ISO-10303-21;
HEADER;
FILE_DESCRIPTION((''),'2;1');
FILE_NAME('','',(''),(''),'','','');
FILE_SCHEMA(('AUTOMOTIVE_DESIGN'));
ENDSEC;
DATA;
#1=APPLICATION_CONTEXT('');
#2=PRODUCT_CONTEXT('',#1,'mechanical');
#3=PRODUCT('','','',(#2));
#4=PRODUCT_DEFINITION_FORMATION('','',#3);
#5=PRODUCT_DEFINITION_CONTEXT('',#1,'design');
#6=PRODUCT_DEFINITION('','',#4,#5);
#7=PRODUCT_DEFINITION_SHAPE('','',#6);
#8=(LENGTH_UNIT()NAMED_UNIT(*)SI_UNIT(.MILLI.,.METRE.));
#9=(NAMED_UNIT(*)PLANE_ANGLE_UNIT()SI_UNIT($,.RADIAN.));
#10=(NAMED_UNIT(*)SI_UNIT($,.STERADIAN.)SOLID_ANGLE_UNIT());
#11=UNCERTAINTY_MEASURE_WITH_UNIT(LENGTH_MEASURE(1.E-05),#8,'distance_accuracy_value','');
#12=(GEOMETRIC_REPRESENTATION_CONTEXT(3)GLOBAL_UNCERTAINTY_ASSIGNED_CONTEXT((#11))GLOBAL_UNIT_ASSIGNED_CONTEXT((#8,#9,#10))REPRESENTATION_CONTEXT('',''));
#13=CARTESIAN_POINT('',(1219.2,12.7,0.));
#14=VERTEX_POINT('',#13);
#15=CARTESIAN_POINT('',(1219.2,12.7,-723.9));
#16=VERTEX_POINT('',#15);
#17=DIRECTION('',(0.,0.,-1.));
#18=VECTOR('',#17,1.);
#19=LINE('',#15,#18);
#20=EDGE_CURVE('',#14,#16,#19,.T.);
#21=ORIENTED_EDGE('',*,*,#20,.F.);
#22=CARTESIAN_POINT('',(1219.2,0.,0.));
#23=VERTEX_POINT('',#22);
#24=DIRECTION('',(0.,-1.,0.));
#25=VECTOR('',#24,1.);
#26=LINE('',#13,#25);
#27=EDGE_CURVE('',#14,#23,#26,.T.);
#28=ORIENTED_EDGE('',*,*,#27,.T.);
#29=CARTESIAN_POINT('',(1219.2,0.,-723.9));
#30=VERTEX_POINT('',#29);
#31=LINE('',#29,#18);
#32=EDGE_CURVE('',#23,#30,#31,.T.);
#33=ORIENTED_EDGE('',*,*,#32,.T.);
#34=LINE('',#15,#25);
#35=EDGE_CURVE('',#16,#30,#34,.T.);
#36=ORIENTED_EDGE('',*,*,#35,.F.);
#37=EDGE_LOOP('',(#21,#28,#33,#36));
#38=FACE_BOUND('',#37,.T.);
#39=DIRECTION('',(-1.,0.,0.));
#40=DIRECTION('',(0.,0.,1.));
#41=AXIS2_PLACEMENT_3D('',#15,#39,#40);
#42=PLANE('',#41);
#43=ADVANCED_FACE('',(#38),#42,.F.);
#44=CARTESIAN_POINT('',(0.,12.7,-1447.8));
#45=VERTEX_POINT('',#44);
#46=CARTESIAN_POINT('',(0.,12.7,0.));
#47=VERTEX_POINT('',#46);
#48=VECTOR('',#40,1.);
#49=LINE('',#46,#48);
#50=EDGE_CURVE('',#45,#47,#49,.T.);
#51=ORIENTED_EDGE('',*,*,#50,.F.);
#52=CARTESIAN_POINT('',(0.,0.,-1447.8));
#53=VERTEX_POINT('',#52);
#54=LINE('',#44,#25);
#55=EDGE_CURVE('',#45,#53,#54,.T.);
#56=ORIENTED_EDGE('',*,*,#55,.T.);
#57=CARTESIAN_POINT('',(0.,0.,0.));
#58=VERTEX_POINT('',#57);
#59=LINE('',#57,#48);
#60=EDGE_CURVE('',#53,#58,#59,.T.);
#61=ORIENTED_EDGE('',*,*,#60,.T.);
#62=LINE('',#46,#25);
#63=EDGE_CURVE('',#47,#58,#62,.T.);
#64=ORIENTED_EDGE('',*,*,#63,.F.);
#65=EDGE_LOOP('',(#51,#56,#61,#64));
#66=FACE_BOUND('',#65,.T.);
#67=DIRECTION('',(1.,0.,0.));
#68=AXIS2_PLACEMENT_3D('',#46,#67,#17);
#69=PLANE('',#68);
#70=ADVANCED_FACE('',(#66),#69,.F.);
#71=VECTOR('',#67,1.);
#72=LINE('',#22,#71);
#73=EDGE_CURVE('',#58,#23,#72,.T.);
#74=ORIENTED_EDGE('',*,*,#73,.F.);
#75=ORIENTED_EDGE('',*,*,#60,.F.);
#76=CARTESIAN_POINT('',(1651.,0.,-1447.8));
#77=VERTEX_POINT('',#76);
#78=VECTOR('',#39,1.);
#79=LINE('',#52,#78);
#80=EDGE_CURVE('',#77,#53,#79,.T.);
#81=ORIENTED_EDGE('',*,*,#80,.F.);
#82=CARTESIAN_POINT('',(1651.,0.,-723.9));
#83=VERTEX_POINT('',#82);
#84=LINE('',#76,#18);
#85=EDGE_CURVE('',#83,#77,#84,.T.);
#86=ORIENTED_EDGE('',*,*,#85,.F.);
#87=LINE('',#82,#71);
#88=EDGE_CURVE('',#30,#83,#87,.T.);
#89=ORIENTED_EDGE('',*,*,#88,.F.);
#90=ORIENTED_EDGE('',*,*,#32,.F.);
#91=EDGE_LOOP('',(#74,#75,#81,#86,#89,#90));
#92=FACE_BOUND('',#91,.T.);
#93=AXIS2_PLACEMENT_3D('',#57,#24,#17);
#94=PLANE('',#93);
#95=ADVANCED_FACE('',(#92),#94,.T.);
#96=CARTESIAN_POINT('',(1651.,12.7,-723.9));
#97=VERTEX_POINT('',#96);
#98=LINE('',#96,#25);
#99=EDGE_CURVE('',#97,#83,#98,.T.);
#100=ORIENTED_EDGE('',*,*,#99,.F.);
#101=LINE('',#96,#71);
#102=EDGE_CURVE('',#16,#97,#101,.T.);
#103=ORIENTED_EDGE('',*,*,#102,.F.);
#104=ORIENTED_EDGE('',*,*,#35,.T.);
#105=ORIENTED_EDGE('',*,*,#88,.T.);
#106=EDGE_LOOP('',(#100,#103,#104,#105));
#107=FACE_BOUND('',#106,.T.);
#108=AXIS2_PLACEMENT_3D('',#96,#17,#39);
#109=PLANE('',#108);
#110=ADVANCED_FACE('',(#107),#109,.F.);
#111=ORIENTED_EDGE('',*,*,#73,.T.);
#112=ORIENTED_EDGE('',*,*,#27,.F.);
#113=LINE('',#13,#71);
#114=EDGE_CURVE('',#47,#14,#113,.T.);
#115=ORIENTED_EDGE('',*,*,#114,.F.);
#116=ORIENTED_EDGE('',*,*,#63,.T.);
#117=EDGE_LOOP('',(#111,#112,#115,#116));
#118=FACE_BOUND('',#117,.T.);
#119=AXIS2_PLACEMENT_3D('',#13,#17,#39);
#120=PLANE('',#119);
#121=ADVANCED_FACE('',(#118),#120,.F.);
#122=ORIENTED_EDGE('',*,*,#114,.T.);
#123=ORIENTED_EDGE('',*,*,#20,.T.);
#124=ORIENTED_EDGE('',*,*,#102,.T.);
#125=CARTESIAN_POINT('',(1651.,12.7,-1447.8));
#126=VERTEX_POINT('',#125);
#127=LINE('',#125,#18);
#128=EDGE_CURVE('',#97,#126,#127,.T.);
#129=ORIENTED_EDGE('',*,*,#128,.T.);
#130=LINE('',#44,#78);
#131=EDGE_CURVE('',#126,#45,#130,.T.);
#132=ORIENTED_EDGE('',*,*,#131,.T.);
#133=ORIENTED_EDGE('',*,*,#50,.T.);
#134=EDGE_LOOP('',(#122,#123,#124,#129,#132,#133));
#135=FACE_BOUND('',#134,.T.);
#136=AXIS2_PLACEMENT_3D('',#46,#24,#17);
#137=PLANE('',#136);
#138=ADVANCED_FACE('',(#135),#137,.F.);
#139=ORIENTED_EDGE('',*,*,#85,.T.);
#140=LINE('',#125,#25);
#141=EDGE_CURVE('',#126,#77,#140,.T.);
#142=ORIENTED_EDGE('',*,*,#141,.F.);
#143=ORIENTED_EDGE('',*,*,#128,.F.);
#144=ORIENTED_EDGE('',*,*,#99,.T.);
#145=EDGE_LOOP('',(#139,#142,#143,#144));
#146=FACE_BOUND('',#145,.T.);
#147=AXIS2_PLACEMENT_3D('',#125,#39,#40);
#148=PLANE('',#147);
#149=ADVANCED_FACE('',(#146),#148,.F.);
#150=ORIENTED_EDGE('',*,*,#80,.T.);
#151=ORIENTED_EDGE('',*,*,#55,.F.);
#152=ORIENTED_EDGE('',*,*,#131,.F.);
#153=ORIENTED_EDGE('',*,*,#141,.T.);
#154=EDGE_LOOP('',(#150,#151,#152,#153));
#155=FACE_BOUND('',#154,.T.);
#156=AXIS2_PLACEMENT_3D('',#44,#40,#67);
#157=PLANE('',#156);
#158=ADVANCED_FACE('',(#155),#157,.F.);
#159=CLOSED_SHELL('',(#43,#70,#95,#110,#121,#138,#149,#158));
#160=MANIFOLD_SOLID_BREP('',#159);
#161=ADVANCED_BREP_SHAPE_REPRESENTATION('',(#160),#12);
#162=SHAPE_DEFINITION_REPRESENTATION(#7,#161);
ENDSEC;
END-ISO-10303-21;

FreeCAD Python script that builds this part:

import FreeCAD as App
import Part
import Sketcher
Q = App.Units.Quantity


def add_polygon(sketch, points):
    """Adds a closed chain of lines whose ends are joined by coincident constraints."""
    first, n = sketch.GeometryCount, len(points)
    for a, b in zip(points, points[1:] + points[:1]):
        sketch.addGeometry(Part.LineSegment(App.Vector(*a, 0), App.Vector(*b, 0)), False)
    for i in range(n):
        sketch.addConstraint(Sketcher.Constraint("Coincident", first + i, 2, first + (i + 1) % n, 1))

doc = App.newDocument("Part")
params = doc.addObject("Spreadsheet::Sheet", "Params")
for row, (alias, value) in enumerate([
    ("sketch1_width", "48 in"),
    ("sketch1_width2", "17 in"),
    ("sketch1_height", "57 in"),
    ("pad1_length", "0.5 in"),
], start=1):
    params.set(f"A{row}", alias)
    params.set(f"B{row}", "=" + value)
    params.setAlias(f"B{row}", alias)

body = doc.addObject("PartDesign::Body", "Body")

# Sketch on XZ plane
sketch1 = body.newObject("Sketcher::SketchObject", "Sketch")
sketch1.AttachmentSupport = (doc.getObject("XZ_Plane"), [""])
sketch1.MapMode = "FlatFace"
add_polygon(sketch1, [(0, -1448), (0, 0), (1219, 0), (1219, -724), (1651, -724), (1651, -1448)])  # lines 0-5
sketch1.addConstraint(Sketcher.Constraint("Vertical", 0))
sketch1.addConstraint(Sketcher.Constraint("Horizontal", 1))
sketch1.addConstraint(Sketcher.Constraint("Vertical", 2))
sketch1.addConstraint(Sketcher.Constraint("Horizontal", 3))
sketch1.addConstraint(Sketcher.Constraint("Vertical", 4))
sketch1.addConstraint(Sketcher.Constraint("Horizontal", 5))
sketch1.addConstraint(Sketcher.Constraint("Coincident", 0, 2, -1, 1))
sketch1.addConstraint(Sketcher.Constraint("Equal", 2, 4))
sketch1.addConstraint(Sketcher.Constraint("DistanceX", 1, 1, 1, 2, Q("48 in")))
sketch1.addConstraint(Sketcher.Constraint("DistanceX", 3, 1, 3, 2, Q("17 in")))
sketch1.addConstraint(Sketcher.Constraint("DistanceY", 0, 1, 0, 2, Q("57 in")))
sketch1.setExpression("Constraints[14]", "Params.sketch1_width")
sketch1.setExpression("Constraints[15]", "Params.sketch1_width2")
sketch1.setExpression("Constraints[16]", "Params.sketch1_height")
pad1 = body.newObject("PartDesign::Pad", "Pad")
pad1.Profile = sketch1
pad1.setExpression("Length", "Params.pad1_length")
pad1.Reversed = True

doc.recompute()
